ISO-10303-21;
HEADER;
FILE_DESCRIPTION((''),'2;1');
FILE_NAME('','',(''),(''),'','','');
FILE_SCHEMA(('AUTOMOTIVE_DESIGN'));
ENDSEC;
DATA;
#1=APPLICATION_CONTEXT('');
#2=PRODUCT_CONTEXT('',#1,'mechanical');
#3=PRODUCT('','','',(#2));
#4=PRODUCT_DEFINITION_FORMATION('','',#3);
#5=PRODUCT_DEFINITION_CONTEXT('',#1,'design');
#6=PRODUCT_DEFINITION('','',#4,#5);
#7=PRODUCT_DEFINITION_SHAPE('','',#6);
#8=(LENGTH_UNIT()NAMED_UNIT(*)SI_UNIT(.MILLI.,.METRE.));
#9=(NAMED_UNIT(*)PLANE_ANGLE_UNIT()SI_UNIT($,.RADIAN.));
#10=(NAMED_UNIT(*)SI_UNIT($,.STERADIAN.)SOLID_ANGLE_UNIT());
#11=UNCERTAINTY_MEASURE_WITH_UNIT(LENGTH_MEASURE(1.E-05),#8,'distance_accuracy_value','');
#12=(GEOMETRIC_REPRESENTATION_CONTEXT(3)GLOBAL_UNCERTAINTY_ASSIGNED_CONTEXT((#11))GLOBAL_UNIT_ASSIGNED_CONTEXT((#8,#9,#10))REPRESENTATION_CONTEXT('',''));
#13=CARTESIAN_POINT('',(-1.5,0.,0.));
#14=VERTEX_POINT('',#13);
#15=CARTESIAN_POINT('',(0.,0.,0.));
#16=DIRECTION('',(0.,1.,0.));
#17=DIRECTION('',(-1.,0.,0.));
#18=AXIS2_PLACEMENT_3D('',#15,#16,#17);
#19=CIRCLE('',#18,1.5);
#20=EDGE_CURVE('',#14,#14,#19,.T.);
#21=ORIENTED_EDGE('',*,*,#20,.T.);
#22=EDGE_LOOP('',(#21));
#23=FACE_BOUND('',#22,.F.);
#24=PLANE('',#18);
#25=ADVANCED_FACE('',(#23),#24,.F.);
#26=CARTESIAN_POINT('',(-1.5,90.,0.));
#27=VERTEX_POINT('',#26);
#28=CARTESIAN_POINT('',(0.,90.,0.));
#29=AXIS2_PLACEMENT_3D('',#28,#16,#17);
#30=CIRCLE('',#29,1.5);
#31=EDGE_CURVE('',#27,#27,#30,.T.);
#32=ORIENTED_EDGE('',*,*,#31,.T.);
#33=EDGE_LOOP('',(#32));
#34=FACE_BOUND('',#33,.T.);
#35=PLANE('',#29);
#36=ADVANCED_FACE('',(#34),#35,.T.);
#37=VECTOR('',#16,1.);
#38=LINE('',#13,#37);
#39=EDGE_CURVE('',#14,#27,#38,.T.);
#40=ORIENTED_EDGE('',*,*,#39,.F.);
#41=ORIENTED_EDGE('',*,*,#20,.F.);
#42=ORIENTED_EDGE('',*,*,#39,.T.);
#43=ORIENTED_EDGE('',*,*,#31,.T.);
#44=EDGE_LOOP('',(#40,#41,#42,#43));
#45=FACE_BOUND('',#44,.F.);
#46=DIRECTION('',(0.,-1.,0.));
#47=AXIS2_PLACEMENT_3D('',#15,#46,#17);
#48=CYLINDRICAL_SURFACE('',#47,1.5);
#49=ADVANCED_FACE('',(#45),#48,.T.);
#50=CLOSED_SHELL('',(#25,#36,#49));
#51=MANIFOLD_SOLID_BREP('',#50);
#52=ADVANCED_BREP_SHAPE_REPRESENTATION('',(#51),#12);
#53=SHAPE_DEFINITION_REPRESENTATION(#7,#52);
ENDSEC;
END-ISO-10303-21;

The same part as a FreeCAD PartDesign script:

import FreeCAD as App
import Part
import Sketcher
Q = App.Units.Quantity

doc = App.newDocument("Part")
body = doc.addObject("PartDesign::Body", "Body")

# Sketch on XZ plane
sketch1 = body.newObject("Sketcher::SketchObject", "Sketch")
sketch1.AttachmentSupport = (doc.getObject("XZ_Plane"), [""])
sketch1.MapMode = "FlatFace"
sketch1.addGeometry(Part.Circle(App.Vector(0, 0, 0), App.Vector(0, 0, 1), 1.5), False)
sketch1.addConstraint(Sketcher.Constraint("Coincident", 0, 3, -1, 1))
sketch1.addConstraint(Sketcher.Constraint("Diameter", 0, Q("3 mm")))
pad1 = body.newObject("PartDesign::Pad", "Pad")
pad1.Profile = sketch1
pad1.Length = 90
pad1.Reversed = True

doc.recompute()
